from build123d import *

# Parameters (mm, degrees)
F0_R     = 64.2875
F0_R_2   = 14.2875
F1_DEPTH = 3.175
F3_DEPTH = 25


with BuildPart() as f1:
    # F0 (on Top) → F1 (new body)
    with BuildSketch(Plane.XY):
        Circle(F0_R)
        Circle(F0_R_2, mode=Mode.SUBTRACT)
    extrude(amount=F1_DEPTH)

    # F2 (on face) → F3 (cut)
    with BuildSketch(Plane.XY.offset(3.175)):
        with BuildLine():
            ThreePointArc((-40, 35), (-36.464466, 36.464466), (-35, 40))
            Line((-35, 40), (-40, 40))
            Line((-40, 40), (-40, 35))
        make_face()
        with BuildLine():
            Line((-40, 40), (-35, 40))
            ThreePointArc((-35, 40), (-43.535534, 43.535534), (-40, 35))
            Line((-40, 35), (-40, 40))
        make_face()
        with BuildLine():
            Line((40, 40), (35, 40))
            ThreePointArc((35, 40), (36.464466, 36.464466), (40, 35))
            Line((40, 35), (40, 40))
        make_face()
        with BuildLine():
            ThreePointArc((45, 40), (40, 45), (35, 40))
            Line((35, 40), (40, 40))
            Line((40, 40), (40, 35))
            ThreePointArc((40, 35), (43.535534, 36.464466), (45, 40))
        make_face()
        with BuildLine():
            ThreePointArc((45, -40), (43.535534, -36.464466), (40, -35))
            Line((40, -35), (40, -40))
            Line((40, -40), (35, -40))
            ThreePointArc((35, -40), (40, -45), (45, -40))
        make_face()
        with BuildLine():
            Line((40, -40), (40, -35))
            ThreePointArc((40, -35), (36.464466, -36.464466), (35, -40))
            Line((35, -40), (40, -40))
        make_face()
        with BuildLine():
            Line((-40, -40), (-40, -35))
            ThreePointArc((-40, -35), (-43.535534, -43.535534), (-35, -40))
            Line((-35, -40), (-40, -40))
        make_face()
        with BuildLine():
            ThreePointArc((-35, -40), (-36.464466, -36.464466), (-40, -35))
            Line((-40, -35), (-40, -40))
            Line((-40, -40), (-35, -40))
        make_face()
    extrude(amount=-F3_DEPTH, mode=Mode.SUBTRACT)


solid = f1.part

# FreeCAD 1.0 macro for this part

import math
import FreeCAD as App
import Part
import Sketcher

V = App.Vector

doc = App.newDocument("Part")
body = doc.addObject("PartDesign::Body", "Body")

# Sketch on XY plane
sketch1 = doc.addObject("Sketcher::SketchObject", "Sketch")
body.addObject(sketch1)
sketch1.AttachmentSupport = (doc.XY_Plane, [""])
sketch1.MapMode = "FlatFace"
sketch1.addGeometry([
    Part.Circle(V(0, 0, 0), V(0, 0, 1), 64.2875),
    Part.Circle(V(0, 0, 0), V(0, 0, 1), 14.2875),
], False)
sketch1.addConstraint([
    Sketcher.Constraint("Coincident", 0, 3, -1, 1),
    Sketcher.Constraint("Coincident", 1, 3, -1, 1),
    Sketcher.Constraint("Diameter", 0, 128.575),
    Sketcher.Constraint("Diameter", 1, 28.575),
])
pad1 = doc.addObject("PartDesign::Pad", "Pad")
body.addObject(pad1)
pad1.Profile = sketch1
pad1.Length = 3.175

# Sketch on XY plane
sketch2 = doc.addObject("Sketcher::SketchObject", "Sketch001")
body.addObject(sketch2)
sketch2.AttachmentSupport = (doc.XY_Plane, [""])
sketch2.MapMode = "FlatFace"
sketch2.AttachmentOffset = App.Placement(V(0, 0, 3.175), App.Rotation())
sketch2.addGeometry([
    Part.ArcOfCircle(Part.Circle(V(-40, 40, 0), V(0, 0, 1), 5), math.radians(-90.000004), math.radians(0.000004)),  # 0
    Part.ArcOfCircle(Part.Circle(V(-40, 40, 0), V(0, 0, 1), 5), math.radians(-0.000001), math.radians(270.000001)),  # 1
    Part.ArcOfCircle(Part.Circle(V(40, 40, 0), V(0, 0, 1), 5), math.radians(179.999996), math.radians(270.000004)),  # 2
    Part.ArcOfCircle(Part.Circle(V(40, 40, 0), V(0, 0, 1), 5), math.radians(-90.000004), math.radians(0.000004)),  # 3
    Part.ArcOfCircle(Part.Circle(V(40, 40, 0), V(0, 0, 1), 5), math.radians(0), math.radians(180)),  # 4
    Part.ArcOfCircle(Part.Circle(V(40, -40, 0), V(0, 0, 1), 5), math.radians(-0.000004), math.radians(90.000004)),  # 5
    Part.ArcOfCircle(Part.Circle(V(40, -40, 0), V(0, 0, 1), 5), math.radians(89.999996), math.radians(180.000004)),  # 6
    Part.ArcOfCircle(Part.Circle(V(40, -40, 0), V(0, 0, 1), 5), math.radians(180), math.radians(360)),  # 7
    Part.ArcOfCircle(Part.Circle(V(-40, -40, 0), V(0, 0, 1), 5), math.radians(89.999999), math.radians(360.000001)),  # 8
    Part.ArcOfCircle(Part.Circle(V(-40, -40, 0), V(0, 0, 1), 5), math.radians(-0.000004), math.radians(90.000004)),  # 9
], False)
sketch2.addConstraint([
    Sketcher.Constraint("Tangent", 0, 1, 1, 2),
    Sketcher.Constraint("Coincident", 1, 1, 0, 2),
    Sketcher.Constraint("Tangent", 2, 2, 3, 1),
    Sketcher.Constraint("Tangent", 3, 2, 4, 1),
    Sketcher.Constraint("Tangent", 4, 2, 2, 1),
    Sketcher.Constraint("Tangent", 5, 2, 6, 1),
    Sketcher.Constraint("Tangent", 6, 2, 7, 1),
    Sketcher.Constraint("Tangent", 7, 2, 5, 1),
    Sketcher.Constraint("Tangent", 8, 1, 9, 2),
    Sketcher.Constraint("Coincident", 9, 1, 8, 2),
    Sketcher.Constraint("Equal", 1, 2),
    Sketcher.Constraint("Equal", 4, 5),
    Sketcher.Constraint("Equal", 7, 8),
    Sketcher.Constraint("Symmetric", 0, 3, 5, 3, -1, 1),
    Sketcher.Constraint("Symmetric", 2, 3, 8, 3, -1, 1),
    Sketcher.Constraint("Symmetric", 0, 3, 2, 3, -2),
    Sketcher.Constraint("Horizontal", 4, 3, 1, 1),
    Sketcher.Constraint("Horizontal", 1, 1, 3, 2),
    Sketcher.Constraint("Horizontal", 3, 2, 4, 2),
    Sketcher.Constraint("Horizontal", 9, 3, 6, 2),
    Sketcher.Constraint("Horizontal", 6, 2, 7, 2),
    Sketcher.Constraint("Horizontal", 7, 2, 9, 1),
    Sketcher.Constraint("Vertical", 9, 3, 0, 1),
    Sketcher.Constraint("Vertical", 7, 3, 2, 2),
    Sketcher.Constraint("Vertical", 2, 2, 5, 2),
    Sketcher.Constraint("Vertical", 0, 1, 8, 1),
    Sketcher.Constraint("Radius", 0, 5.0),
    Sketcher.Constraint("DistanceX", 0, 3, -1, 1, 40.0),
    Sketcher.Constraint("DistanceY", -1, 1, 0, 3, 40.0),
])
pocket1 = doc.addObject("PartDesign::Pocket", "Pocket")
body.addObject(pocket1)
pocket1.Profile = sketch2
pocket1.Length = 25

doc.recompute()
